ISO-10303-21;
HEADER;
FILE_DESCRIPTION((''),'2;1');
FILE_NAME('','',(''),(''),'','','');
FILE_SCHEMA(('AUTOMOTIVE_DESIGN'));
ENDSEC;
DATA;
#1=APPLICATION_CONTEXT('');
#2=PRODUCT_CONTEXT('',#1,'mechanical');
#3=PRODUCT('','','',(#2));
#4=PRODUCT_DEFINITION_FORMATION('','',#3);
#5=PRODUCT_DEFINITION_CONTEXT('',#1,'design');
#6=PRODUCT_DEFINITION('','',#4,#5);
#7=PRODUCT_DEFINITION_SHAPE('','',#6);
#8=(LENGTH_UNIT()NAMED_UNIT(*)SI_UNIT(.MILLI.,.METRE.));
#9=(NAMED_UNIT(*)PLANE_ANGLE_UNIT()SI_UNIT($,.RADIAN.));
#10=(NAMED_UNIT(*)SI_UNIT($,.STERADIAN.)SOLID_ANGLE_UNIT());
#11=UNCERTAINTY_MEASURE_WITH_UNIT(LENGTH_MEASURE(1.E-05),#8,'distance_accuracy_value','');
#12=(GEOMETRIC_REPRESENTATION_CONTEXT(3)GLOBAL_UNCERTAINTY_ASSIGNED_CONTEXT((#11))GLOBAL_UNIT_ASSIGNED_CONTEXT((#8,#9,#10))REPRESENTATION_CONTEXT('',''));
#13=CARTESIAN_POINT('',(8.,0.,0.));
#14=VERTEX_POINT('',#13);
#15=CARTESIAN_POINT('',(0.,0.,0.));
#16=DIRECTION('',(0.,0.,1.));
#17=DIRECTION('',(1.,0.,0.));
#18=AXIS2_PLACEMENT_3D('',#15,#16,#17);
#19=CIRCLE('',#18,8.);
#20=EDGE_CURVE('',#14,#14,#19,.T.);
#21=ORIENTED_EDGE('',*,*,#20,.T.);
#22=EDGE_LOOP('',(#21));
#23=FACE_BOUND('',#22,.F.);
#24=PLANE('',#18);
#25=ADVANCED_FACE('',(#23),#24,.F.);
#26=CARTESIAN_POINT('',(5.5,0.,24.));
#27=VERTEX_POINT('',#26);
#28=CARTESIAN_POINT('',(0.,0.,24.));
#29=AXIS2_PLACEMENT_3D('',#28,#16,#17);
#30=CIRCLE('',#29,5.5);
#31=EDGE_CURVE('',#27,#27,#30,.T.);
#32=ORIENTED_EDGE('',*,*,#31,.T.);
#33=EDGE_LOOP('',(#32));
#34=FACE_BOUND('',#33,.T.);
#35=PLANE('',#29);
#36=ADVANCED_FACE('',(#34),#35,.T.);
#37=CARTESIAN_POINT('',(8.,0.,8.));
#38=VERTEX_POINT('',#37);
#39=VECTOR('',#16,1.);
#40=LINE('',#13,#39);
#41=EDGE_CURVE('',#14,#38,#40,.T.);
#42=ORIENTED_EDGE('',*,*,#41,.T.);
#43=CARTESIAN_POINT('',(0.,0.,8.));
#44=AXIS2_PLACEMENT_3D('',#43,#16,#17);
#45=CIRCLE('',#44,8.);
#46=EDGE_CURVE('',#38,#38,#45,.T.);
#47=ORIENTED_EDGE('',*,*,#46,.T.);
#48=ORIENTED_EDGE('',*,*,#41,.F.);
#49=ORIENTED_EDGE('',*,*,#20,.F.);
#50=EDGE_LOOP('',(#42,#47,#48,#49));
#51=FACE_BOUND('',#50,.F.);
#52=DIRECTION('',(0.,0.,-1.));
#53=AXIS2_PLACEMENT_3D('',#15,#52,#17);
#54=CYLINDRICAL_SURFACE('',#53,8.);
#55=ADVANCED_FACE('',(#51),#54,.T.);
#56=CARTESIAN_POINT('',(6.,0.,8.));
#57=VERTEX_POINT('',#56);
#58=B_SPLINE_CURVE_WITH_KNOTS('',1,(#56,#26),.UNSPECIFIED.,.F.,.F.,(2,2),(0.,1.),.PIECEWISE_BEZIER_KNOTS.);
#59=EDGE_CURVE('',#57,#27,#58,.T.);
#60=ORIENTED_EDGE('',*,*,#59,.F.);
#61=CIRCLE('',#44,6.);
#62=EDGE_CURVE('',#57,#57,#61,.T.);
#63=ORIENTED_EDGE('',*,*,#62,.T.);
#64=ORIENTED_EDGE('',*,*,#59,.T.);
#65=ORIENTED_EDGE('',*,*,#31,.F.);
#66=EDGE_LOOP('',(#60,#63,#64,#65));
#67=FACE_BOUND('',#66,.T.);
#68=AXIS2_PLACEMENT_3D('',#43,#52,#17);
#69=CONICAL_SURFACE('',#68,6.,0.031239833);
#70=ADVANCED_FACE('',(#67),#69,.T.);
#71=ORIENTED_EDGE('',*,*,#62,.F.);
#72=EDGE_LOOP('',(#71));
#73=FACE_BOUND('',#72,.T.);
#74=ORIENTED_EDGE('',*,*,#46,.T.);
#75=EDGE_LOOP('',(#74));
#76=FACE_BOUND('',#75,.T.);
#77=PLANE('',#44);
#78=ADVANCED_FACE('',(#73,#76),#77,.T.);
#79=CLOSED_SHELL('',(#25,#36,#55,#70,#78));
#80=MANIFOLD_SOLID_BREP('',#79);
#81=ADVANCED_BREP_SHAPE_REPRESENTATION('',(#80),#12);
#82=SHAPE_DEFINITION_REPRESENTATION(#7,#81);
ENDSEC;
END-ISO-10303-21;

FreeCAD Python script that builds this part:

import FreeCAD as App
import Part
import Sketcher
Q = App.Units.Quantity

doc = App.newDocument("Part")
body = doc.addObject("PartDesign::Body", "Body")

# Sketch on XY plane
sketch1 = body.newObject("Sketcher::SketchObject", "Sketch")
sketch1.AttachmentSupport = (doc.getObject("XY_Plane"), [""])
sketch1.MapMode = "FlatFace"
sketch1.addGeometry(Part.Circle(App.Vector(0, 0, 0), App.Vector(0, 0, 1), 8), False)
sketch1.addConstraint([
    Sketcher.Constraint("Coincident", 0, 3, -1, 1),
    Sketcher.Constraint("Diameter", 0, Q("16 mm")),
])
pad1 = body.newObject("PartDesign::Pad", "Pad")
pad1.Profile = sketch1
pad1.Length = 8

# Sketch on XY plane
sketch2 = body.newObject("Sketcher::SketchObject", "Sketch001")
sketch2.AttachmentSupport = (doc.getObject("XY_Plane"), [""])
sketch2.MapMode = "FlatFace"
sketch2.AttachmentOffset = App.Placement(App.Vector(0, 0, 8), App.Rotation())
sketch2.addGeometry(Part.Circle(App.Vector(0, 0, 0), App.Vector(0, 0, 1), 6), False)
sketch2.addConstraint([
    Sketcher.Constraint("Coincident", 0, 3, -1, 1),
    Sketcher.Constraint("Diameter", 0, Q("12 mm")),
])

# Sketch on XY plane
sketch3 = body.newObject("Sketcher::SketchObject", "Sketch002")
sketch3.AttachmentSupport = (doc.getObject("XY_Plane"), [""])
sketch3.MapMode = "FlatFace"
sketch3.AttachmentOffset = App.Placement(App.Vector(0, 0, 24), App.Rotation())
sketch3.addGeometry(Part.Circle(App.Vector(0, 0, 0), App.Vector(0, 0, 1), 5.5), False)
sketch3.addConstraint([
    Sketcher.Constraint("Coincident", 0, 3, -1, 1),
    Sketcher.Constraint("Diameter", 0, Q("11 mm")),
])

additiveloft = body.newObject("PartDesign::AdditiveLoft", "AdditiveLoft")
additiveloft.Profile = sketch2
additiveloft.Sections = [sketch3]

doc.recompute()
